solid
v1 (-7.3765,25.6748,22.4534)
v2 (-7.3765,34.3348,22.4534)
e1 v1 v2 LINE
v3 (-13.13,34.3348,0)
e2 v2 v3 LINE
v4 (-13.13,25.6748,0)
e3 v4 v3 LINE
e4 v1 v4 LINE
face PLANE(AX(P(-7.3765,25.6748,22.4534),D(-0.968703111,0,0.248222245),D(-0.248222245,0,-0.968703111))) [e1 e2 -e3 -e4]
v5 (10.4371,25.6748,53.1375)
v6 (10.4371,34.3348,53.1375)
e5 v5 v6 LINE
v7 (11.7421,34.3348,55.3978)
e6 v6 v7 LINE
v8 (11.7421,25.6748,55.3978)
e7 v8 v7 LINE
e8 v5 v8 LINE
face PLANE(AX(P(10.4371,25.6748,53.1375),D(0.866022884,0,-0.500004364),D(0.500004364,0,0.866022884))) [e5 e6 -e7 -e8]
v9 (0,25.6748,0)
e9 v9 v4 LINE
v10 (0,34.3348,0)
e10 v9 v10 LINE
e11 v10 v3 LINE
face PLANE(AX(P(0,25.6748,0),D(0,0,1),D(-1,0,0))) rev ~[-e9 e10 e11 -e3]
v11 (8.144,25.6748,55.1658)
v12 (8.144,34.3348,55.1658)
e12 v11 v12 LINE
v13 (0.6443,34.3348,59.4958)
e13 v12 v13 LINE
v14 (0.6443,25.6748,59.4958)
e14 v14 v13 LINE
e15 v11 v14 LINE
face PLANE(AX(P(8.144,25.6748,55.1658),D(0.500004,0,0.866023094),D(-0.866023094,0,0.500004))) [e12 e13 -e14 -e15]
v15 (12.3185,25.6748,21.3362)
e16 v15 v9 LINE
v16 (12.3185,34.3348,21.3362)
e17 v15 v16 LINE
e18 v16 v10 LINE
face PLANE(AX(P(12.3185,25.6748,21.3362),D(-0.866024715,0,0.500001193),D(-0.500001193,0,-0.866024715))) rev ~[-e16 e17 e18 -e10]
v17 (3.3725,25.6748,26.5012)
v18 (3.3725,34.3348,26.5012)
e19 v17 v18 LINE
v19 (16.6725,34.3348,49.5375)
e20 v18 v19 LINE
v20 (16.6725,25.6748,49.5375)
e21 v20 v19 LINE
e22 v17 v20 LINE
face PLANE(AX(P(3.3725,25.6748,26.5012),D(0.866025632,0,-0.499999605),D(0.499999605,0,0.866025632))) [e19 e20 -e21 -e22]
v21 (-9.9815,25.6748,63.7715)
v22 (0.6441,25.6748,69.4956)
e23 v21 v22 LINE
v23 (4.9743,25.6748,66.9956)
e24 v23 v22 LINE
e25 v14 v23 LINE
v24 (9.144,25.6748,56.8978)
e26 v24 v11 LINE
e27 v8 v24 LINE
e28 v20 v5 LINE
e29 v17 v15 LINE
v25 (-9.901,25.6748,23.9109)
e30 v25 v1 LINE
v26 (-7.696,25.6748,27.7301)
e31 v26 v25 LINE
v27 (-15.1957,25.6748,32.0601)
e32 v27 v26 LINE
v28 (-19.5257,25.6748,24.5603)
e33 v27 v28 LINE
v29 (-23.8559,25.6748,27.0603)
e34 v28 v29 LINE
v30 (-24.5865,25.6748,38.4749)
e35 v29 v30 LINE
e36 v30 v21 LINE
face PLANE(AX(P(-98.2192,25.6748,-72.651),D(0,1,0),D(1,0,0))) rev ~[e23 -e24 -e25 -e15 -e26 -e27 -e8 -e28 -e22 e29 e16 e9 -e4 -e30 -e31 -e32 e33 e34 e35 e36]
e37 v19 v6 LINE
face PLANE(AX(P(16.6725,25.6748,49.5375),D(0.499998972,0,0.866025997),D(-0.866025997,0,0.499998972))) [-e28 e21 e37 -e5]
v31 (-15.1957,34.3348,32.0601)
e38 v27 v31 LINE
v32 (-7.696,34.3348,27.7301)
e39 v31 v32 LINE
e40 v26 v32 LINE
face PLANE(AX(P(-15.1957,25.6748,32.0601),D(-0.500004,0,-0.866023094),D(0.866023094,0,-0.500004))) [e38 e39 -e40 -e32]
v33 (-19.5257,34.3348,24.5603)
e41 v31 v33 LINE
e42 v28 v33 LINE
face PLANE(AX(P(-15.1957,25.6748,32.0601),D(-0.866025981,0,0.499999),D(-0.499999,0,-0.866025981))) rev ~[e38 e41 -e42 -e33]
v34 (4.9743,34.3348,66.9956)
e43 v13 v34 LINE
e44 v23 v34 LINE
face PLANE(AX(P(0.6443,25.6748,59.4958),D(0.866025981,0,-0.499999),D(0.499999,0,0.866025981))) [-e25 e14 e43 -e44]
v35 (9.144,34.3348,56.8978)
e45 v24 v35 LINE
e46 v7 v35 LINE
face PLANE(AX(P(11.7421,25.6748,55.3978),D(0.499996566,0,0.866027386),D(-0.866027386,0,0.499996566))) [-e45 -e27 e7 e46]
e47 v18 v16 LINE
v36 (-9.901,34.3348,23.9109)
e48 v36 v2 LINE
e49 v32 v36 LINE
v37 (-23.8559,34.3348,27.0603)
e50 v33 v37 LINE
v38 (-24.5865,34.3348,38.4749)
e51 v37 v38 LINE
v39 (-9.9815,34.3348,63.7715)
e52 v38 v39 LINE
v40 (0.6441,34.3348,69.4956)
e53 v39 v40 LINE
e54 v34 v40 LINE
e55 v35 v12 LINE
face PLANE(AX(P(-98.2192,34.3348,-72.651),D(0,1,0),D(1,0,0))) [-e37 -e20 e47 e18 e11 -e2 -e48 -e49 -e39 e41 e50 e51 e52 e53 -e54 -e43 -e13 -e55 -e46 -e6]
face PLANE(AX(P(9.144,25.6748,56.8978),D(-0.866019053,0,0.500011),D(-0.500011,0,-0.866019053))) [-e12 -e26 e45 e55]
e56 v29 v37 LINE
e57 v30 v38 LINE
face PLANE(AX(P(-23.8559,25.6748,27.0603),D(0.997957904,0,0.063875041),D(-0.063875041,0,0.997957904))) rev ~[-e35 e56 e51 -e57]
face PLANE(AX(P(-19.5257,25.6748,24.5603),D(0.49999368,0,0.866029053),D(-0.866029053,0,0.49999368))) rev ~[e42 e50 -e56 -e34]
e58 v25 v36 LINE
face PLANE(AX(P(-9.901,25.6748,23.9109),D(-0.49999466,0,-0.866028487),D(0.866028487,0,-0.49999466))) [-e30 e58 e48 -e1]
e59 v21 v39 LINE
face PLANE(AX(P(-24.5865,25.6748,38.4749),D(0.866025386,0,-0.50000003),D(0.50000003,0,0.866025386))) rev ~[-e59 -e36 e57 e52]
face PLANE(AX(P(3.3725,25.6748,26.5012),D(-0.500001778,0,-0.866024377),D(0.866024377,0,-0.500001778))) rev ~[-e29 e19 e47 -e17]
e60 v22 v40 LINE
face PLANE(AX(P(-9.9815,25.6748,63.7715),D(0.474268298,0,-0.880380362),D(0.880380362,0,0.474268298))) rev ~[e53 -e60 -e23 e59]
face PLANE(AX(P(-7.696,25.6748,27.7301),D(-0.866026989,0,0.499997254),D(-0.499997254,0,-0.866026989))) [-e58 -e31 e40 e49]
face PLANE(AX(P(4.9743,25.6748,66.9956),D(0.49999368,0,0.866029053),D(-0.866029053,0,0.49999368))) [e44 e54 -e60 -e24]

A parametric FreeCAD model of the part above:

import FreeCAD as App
import Part
import Sketcher


def add_polygon(sketch, points):
    """Adds a closed chain of lines whose ends are joined by coincident constraints."""
    first, n = sketch.GeometryCount, len(points)
    for a, b in zip(points, points[1:] + points[:1]):
        sketch.addGeometry(Part.LineSegment(App.Vector(*a, 0), App.Vector(*b, 0)), False)
    for i in range(n):
        sketch.addConstraint(Sketcher.Constraint("Coincident", first + i, 2, first + (i + 1) % n, 1))

doc = App.newDocument("Part")
body = doc.addObject("PartDesign::Body", "Body")

# Sketch on XZ plane
sketch1 = body.newObject("Sketcher::SketchObject", "Sketch")
sketch1.AttachmentSupport = (doc.getObject("XZ_Plane"), [""])
sketch1.MapMode = "FlatFace"
sketch1.AttachmentOffset = App.Placement(App.Vector(0, 0, -25.6748), App.Rotation())
add_polygon(sketch1, [(16.6725, 49.5375), (3.3725, 26.5012), (12.3185, 21.3362), (0, 0), (-13.13, 0), (-7.3765, 22.4534), (-9.901, 23.9109), (-7.696, 27.7301), (-15.1957, 32.0601), (-19.5257, 24.5603), (-23.8559, 27.0603), (-24.5865, 38.4749), (-9.9815, 63.7715), (0.6441, 69.4956), (4.9743, 66.9956), (0.6443, 59.4958), (8.144, 55.1658), (9.144, 56.8978), (11.7421, 55.3978), (10.4371, 53.1375)])  # lines 0-19
sketch1.addConstraint(Sketcher.Constraint("Horizontal", 3))
sketch1.addConstraint(Sketcher.Constraint("Coincident", 2, 2, -1, 1))
sketch1.addConstraint(Sketcher.Constraint("Perpendicular", 0, 1))
sketch1.addConstraint(Sketcher.Constraint("Perpendicular", 1, 2))
sketch1.addConstraint(Sketcher.Constraint("Perpendicular", 2, 5))
sketch1.addConstraint(Sketcher.Constraint("Perpendicular", 5, 6))
sketch1.addConstraint(Sketcher.Constraint("Perpendicular", 6, 7))
sketch1.addConstraint(Sketcher.Constraint("Perpendicular", 7, 8))
sketch1.addConstraint(Sketcher.Constraint("Perpendicular", 8, 9))
sketch1.addConstraint(Sketcher.Constraint("Perpendicular", 9, 11))
sketch1.addConstraint(Sketcher.Constraint("Perpendicular", 11, 13))
sketch1.addConstraint(Sketcher.Constraint("Perpendicular", 13, 14))
sketch1.addConstraint(Sketcher.Constraint("Perpendicular", 14, 15))
sketch1.addConstraint(Sketcher.Constraint("Perpendicular", 15, 16))
sketch1.addConstraint(Sketcher.Constraint("Perpendicular", 16, 17))
sketch1.addConstraint(Sketcher.Constraint("Perpendicular", 17, 18))
sketch1.addConstraint(Sketcher.Constraint("Perpendicular", 18, 19))
sketch1.addConstraint(Sketcher.Constraint("Vertical", 12, 2, 14, 2))
sketch1.addConstraint(Sketcher.Constraint("Equal", 7, 8))
sketch1.addConstraint(Sketcher.Constraint("Equal", 9, 13))
sketch1.addConstraint(Sketcher.Constraint("Equal", 8, 14))
sketch1.addConstraint(Sketcher.Constraint("Equal", 14, 15))
sketch1.addConstraint(Sketcher.Constraint("Distance", 9, 5.0))
sketch1.addConstraint(Sketcher.Constraint("Distance", 16, 2.0))
sketch1.addConstraint(Sketcher.Constraint("Distance", 17, 3.0))
sketch1.addConstraint(Sketcher.Constraint("Distance", 0, 26.6))
sketch1.addConstraint(Sketcher.Constraint("Distance", 19, 7.2))
sketch1.addConstraint(Sketcher.Constraint("DistanceX", 3, 2, 3, 1, 13.13))
sketch1.addConstraint(Sketcher.Constraint("Distance", 1, 10.33))
sketch1.addConstraint(Sketcher.Constraint("Distance", 6, 4.41))
sketch1.addConstraint(Sketcher.Constraint("Distance", 7, 8.66))
sketch1.addConstraint(Sketcher.Constraint("Distance", 11, 29.21))
sketch1.addConstraint(Sketcher.Constraint("Distance", 18, 2.61))
sketch1.addConstraint(Sketcher.Constraint("Distance", 2, 24.637))
sketch1.addConstraint(Sketcher.Constraint("Distance", 5, 2.915))
sketch1.addConstraint(Sketcher.Constraint("Distance", 4, 23.1788))
sketch1.addConstraint(Sketcher.Constraint("DistanceY", -1, 1, 6, 2, 27.73))
sketch1.addConstraint(Sketcher.Constraint("Distance", 10, 11.438))
sketch1.addConstraint(Sketcher.Constraint("DistanceY", -1, 1, 10, 2, 38.475))
pad1 = body.newObject("PartDesign::Pad", "Pad")
pad1.Profile = sketch1
pad1.Length = 8.66
pad1.Reversed = True

doc.recompute()
